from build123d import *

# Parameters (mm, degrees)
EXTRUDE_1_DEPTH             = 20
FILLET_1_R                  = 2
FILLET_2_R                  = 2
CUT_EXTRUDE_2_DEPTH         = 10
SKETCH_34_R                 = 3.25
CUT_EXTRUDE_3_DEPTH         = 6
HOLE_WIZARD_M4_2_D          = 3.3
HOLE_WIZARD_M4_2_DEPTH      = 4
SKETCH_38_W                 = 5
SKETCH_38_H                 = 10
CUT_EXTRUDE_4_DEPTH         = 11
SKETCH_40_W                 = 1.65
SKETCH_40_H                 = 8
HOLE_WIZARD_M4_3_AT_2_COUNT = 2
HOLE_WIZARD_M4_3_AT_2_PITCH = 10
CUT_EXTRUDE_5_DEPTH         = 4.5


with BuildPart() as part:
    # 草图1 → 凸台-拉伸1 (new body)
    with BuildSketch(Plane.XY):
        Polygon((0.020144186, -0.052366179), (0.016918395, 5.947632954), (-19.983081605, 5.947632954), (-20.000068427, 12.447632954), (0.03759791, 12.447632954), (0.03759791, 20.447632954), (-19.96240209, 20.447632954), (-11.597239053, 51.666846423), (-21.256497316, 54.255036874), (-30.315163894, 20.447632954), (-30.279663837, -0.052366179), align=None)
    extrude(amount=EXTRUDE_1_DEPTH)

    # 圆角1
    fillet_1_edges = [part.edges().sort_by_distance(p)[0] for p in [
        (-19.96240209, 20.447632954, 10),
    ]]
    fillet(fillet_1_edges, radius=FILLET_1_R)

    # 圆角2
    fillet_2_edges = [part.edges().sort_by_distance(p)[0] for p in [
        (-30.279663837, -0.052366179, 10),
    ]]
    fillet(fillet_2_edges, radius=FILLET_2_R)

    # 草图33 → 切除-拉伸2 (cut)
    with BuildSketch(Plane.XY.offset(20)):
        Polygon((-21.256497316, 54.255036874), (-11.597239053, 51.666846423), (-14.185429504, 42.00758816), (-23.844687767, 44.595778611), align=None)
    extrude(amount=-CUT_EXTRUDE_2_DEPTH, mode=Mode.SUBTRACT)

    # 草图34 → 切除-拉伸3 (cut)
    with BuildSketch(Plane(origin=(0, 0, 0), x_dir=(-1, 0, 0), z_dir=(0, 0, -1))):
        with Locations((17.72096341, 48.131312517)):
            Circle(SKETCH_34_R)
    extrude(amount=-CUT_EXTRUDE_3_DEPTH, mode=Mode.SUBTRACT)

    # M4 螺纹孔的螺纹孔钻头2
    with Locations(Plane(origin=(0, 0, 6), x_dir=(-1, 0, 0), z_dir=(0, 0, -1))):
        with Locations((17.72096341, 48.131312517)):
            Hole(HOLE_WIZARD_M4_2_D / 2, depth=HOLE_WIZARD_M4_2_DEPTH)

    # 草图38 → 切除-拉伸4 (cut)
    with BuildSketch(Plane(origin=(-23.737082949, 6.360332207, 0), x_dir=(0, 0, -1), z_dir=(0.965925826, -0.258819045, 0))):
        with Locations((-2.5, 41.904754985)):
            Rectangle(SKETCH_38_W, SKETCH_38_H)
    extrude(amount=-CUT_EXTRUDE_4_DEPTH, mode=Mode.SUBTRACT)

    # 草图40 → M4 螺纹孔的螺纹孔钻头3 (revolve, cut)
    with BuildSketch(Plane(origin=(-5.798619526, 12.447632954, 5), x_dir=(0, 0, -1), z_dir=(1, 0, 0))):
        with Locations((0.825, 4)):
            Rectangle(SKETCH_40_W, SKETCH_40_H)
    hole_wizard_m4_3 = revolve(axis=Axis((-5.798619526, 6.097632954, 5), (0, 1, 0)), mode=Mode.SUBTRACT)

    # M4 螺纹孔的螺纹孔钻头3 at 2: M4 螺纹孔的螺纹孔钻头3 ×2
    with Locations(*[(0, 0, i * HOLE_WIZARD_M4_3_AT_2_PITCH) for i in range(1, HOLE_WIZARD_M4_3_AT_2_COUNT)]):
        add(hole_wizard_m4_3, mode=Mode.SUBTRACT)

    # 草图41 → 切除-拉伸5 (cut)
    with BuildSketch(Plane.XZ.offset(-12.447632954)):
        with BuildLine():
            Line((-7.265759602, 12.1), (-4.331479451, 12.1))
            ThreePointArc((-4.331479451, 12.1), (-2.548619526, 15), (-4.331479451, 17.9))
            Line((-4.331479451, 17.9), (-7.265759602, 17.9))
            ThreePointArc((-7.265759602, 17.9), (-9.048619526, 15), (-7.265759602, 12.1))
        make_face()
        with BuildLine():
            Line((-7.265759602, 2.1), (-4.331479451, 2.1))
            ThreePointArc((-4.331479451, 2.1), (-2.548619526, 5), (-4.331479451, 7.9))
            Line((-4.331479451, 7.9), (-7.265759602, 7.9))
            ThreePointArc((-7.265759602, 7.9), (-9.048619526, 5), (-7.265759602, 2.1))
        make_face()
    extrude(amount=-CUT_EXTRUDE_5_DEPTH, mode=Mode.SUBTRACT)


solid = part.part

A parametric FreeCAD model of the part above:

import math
import FreeCAD as App
import Part
import Sketcher
from FreeCAD import Vector
Q = App.Units.Quantity


def edges_at(feature, points):
    """Names of the edges that pass closest to the given points."""
    edges = feature.Shape.Edges
    near = lambda p: min(range(len(edges)), key=lambda i: edges[i].distToShape(Part.Vertex(*p))[0])
    return sorted({f"Edge{near(p) + 1}" for p in points})

doc = App.newDocument("Part")
body = doc.addObject("PartDesign::Body", "Body")

# Sketch on XY plane
sketch1 = doc.addObject("Sketcher::SketchObject", "Sketch")
body.addObject(sketch1)
sketch1.AttachmentSupport = (doc.XY_Plane, [""])
sketch1.MapMode = "FlatFace"
sketch1.addGeometry([
    Part.LineSegment(Vector(0.020144, -0.052366, 0), Vector(0.016918, 5.947633, 0)),  # 0
    Part.LineSegment(Vector(0.016918, 5.947633, 0), Vector(-19.983082, 5.947633, 0)),  # 1
    Part.LineSegment(Vector(-19.983082, 5.947633, 0), Vector(-20.000068, 12.447633, 0)),  # 2
    Part.LineSegment(Vector(-20.000068, 12.447633, 0), Vector(0.037598, 12.447633, 0)),  # 3
    Part.LineSegment(Vector(0.037598, 12.447633, 0), Vector(0.037598, 20.447633, 0)),  # 4
    Part.LineSegment(Vector(0.037598, 20.447633, 0), Vector(-19.962402, 20.447633, 0)),  # 5
    Part.LineSegment(Vector(-19.962402, 20.447633, 0), Vector(-11.597239, 51.666846, 0)),  # 6
    Part.LineSegment(Vector(-11.597239, 51.666846, 0), Vector(-21.256497, 54.255037, 0)),  # 7
    Part.LineSegment(Vector(-21.256497, 54.255037, 0), Vector(-30.315164, 20.447633, 0)),  # 8
    Part.LineSegment(Vector(-30.315164, 20.447633, 0), Vector(-30.279664, -0.052366, 0)),  # 9
    Part.LineSegment(Vector(-30.279664, -0.052366, 0), Vector(0.020144, -0.052366, 0)),  # 10
], False)
sketch1.addConstraint([
    Sketcher.Constraint("Coincident", 0, 2, 1, 1),
    Sketcher.Constraint("Coincident", 1, 2, 2, 1),
    Sketcher.Constraint("Coincident", 2, 2, 3, 1),
    Sketcher.Constraint("Coincident", 3, 2, 4, 1),
    Sketcher.Constraint("Coincident", 4, 2, 5, 1),
    Sketcher.Constraint("Coincident", 5, 2, 6, 1),
    Sketcher.Constraint("Coincident", 6, 2, 7, 1),
    Sketcher.Constraint("Coincident", 7, 2, 8, 1),
    Sketcher.Constraint("Coincident", 8, 2, 9, 1),
    Sketcher.Constraint("Coincident", 9, 2, 10, 1),
    Sketcher.Constraint("Coincident", 10, 2, 0, 1),
    Sketcher.Constraint("Horizontal", 1),
    Sketcher.Constraint("Horizontal", 3),
    Sketcher.Constraint("Vertical", 4),
    Sketcher.Constraint("Horizontal", 5),
    Sketcher.Constraint("Horizontal", 10),
    Sketcher.Constraint("Perpendicular", 6, 7),
    Sketcher.Constraint("Perpendicular", 7, 8),
    Sketcher.Constraint("Horizontal", 5, 2, 8, 2),
    Sketcher.Constraint("Equal", 1, 5),
    Sketcher.Constraint("DistanceX", 1, 2, 1, 1, Q("20 mm")),
    Sketcher.Constraint("DistanceY", 4, 1, 4, 2, Q("8 mm")),
    Sketcher.Constraint("Angle", 6, Q("75 deg")),
    Sketcher.Constraint("Distance", 0, Q("6 mm")),
    Sketcher.Constraint("Distance", 7, Q("10 mm")),
    Sketcher.Constraint("Distance", 8, Q("35 mm")),
    Sketcher.Constraint("DistanceY", 1, 2, 2, 2, Q("6.5 mm")),
    Sketcher.Constraint("DistanceX", 10, 1, 10, 2, Q("30.299808 mm")),
    Sketcher.Constraint("DistanceX", 8, 2, 9, 2, Q("0.0355 mm")),
    Sketcher.Constraint("DistanceX", 3, 1, 3, 2, Q("20.037666 mm")),
    Sketcher.Constraint("DistanceX", -1, 1, 0, 2, Q("0.016918 mm")),
    Sketcher.Constraint("DistanceX", 2, 2, -1, 1, Q("20.000068 mm")),
    Sketcher.Constraint("DistanceY", -1, 1, 0, 2, Q("5.947633 mm")),
])
pad1 = doc.addObject("PartDesign::Pad", "Pad")
body.addObject(pad1)
pad1.Profile = sketch1
pad1.Length = 20
doc.recompute()

fillet = doc.addObject("PartDesign::Fillet", "Fillet")
body.addObject(fillet)
fillet.Base = (pad1, edges_at(pad1, [(-19.962, 20.448, 10)]))
fillet.Radius = 2
doc.recompute()

fillet2 = doc.addObject("PartDesign::Fillet", "Fillet001")
body.addObject(fillet2)
fillet2.Base = (fillet, edges_at(fillet, [(-30.28, -0.052, 10)]))
fillet2.Radius = 2

# Sketch on XY plane
sketch2 = doc.addObject("Sketcher::SketchObject", "Sketch001")
body.addObject(sketch2)
sketch2.AttachmentSupport = (doc.XY_Plane, [""])
sketch2.MapMode = "FlatFace"
sketch2.AttachmentOffset = App.Placement(Vector(0, 0, 20), App.Rotation())
sketch2.addGeometry([
    Part.LineSegment(Vector(-11.597239, 51.666846, 0), Vector(-21.256497, 54.255037, 0)),
    Part.LineSegment(Vector(-21.256497, 54.255037, 0), Vector(-23.844688, 44.595779, 0)),
    Part.LineSegment(Vector(-23.844688, 44.595779, 0), Vector(-14.18543, 42.007588, 0)),
    Part.LineSegment(Vector(-14.18543, 42.007588, 0), Vector(-11.597239, 51.666846, 0)),
], False)
sketch2.addConstraint([
    Sketcher.Constraint("Coincident", 0, 2, 1, 1),
    Sketcher.Constraint("Coincident", 1, 2, 2, 1),
    Sketcher.Constraint("Coincident", 2, 2, 3, 1),
    Sketcher.Constraint("Coincident", 3, 2, 0, 1),
    Sketcher.Constraint("Perpendicular", 0, 1),
    Sketcher.Constraint("Perpendicular", 1, 2),
    Sketcher.Constraint("Perpendicular", 2, 3),
    Sketcher.Constraint("Equal", 0, 1),
    Sketcher.Constraint("Angle", 0, Q("165 deg")),
    Sketcher.Constraint("Distance", 0, Q("10 mm")),
    Sketcher.Constraint("DistanceY", -1, 1, 1, 2, Q("44.595779 mm")),
    Sketcher.Constraint("DistanceX", 2, 2, -1, 1, Q("14.18543 mm")),
])
pocket1 = doc.addObject("PartDesign::Pocket", "Pocket")
body.addObject(pocket1)
pocket1.Profile = sketch2
pocket1.Length = 10

# Sketch on XY plane
sketch3 = doc.addObject("Sketcher::SketchObject", "Sketch002")
body.addObject(sketch3)
sketch3.AttachmentSupport = (doc.XY_Plane, [""])
sketch3.MapMode = "FlatFace"
sketch3.addGeometry(Part.Circle(Vector(-17.720963, 48.131313, 0), Vector(0, 0, 1), 3.25), False)
sketch3.addConstraint([
    Sketcher.Constraint("Diameter", 0, Q("6.5 mm")),
    Sketcher.Constraint("DistanceX", 0, 3, -1, 1, Q("17.720963 mm")),
    Sketcher.Constraint("DistanceY", -1, 1, 0, 3, Q("48.131313 mm")),
])
pocket2 = doc.addObject("PartDesign::Pocket", "Pocket001")
body.addObject(pocket2)
pocket2.Profile = sketch3
pocket2.Length = 6
pocket2.Reversed = True

# Sketch on XY plane
sketch4 = doc.addObject("Sketcher::SketchObject", "Sketch003")
body.addObject(sketch4)
sketch4.AttachmentSupport = (doc.XY_Plane, [""])
sketch4.MapMode = "FlatFace"
sketch4.AttachmentOffset = App.Placement(Vector(0, 0, 6), App.Rotation())
sketch4.addGeometry(Part.Circle(Vector(-17.720963, 48.131313, 0), Vector(0, 0, 1), 1.65), False)
sketch4.addConstraint([
    Sketcher.Constraint("Diameter", 0, Q("3.3 mm")),
    Sketcher.Constraint("DistanceX", 0, 3, -1, 1, Q("17.720963 mm")),
    Sketcher.Constraint("DistanceY", -1, 1, 0, 3, Q("48.131313 mm")),
])
doc.recompute()
hole = doc.addObject("PartDesign::Hole", "Hole")
body.addObject(hole)
hole.Profile = sketch4
hole.ThreadType = "None"
hole.Diameter = 3.3
hole.DepthType = "Dimension"
hole.Depth = 4
hole.DrillPoint = "Flat"
hole.Reversed = True

# Sketch on an angled plane
sketch5 = doc.addObject("Sketcher::SketchObject", "Sketch004")
body.addObject(sketch5)
sketch5.Placement = App.Placement(Vector(-23.737083, 6.360332, 0), App.Rotation(Vector(0, 0, -1), Vector(0.258819045, 0.965925826, 0), Vector(0.965925826, -0.258819045, 0), "ZXY"))
sketch5.addGeometry([
    Part.LineSegment(Vector(-5, 46.904755, 0), Vector(-5, 36.904755, 0)),
    Part.LineSegment(Vector(-5, 36.904755, 0), Vector(0, 36.904755, 0)),
    Part.LineSegment(Vector(0, 36.904755, 0), Vector(0, 46.904755, 0)),
    Part.LineSegment(Vector(0, 46.904755, 0), Vector(-5, 46.904755, 0)),
], False)
sketch5.addConstraint([
    Sketcher.Constraint("Coincident", 0, 2, 1, 1),
    Sketcher.Constraint("Coincident", 1, 2, 2, 1),
    Sketcher.Constraint("Coincident", 2, 2, 3, 1),
    Sketcher.Constraint("Coincident", 3, 2, 0, 1),
    Sketcher.Constraint("Vertical", 0),
    Sketcher.Constraint("Horizontal", 1),
    Sketcher.Constraint("Vertical", 2),
    Sketcher.Constraint("Horizontal", 3),
    Sketcher.Constraint("PointOnObject", 1, 2, -2),
    Sketcher.Constraint("DistanceX", 1, 1, 1, 2, Q("5 mm")),
    Sketcher.Constraint("DistanceY", 0, 2, 0, 1, Q("10 mm")),
    Sketcher.Constraint("DistanceY", -1, 1, 0, 2, Q("36.904755 mm")),
])
pocket3 = doc.addObject("PartDesign::Pocket", "Pocket002")
body.addObject(pocket3)
pocket3.Profile = sketch5
pocket3.Length = 11

# Sketch on YZ plane
sketch6 = doc.addObject("Sketcher::SketchObject", "Sketch005")
body.addObject(sketch6)
sketch6.AttachmentSupport = (doc.YZ_Plane, [""])
sketch6.MapMode = "FlatFace"
sketch6.AttachmentOffset = App.Placement(Vector(0, 0, -5.79862), App.Rotation())
sketch6.addGeometry([
    Part.LineSegment(Vector(20.447633, 5, 0), Vector(12.447633, 5, 0)),
    Part.LineSegment(Vector(12.447633, 5, 0), Vector(12.447633, 3.35, 0)),
    Part.LineSegment(Vector(12.447633, 3.35, 0), Vector(20.447633, 3.35, 0)),
    Part.LineSegment(Vector(20.447633, 3.35, 0), Vector(20.447633, 5, 0)),
], False)
sketch6.addGeometry(Part.LineSegment(Vector(12.447633, 5, 0), Vector(20.447633, 5, 0)), True)  # axis
sketch6.addConstraint([
    Sketcher.Constraint("Coincident", 0, 2, 1, 1),
    Sketcher.Constraint("Coincident", 1, 2, 2, 1),
    Sketcher.Constraint("Coincident", 2, 2, 3, 1),
    Sketcher.Constraint("Coincident", 3, 2, 0, 1),
    Sketcher.Constraint("Horizontal", 0),
    Sketcher.Constraint("Vertical", 1),
    Sketcher.Constraint("Horizontal", 2),
    Sketcher.Constraint("Vertical", 3),
    Sketcher.Constraint("Horizontal", 4),
    Sketcher.Constraint("Coincident", 4, 1, 0, 2),
    Sketcher.Constraint("Vertical", 2, 2, 4, 2),
    Sketcher.Constraint("DistanceX", 0, 2, 0, 1, Q("8 mm")),
    Sketcher.Constraint("DistanceY", -1, 1, 0, 2, Q("5 mm")),
    Sketcher.Constraint("DistanceY", 1, 2, 1, 1, Q("1.65 mm")),
    Sketcher.Constraint("DistanceX", -1, 1, 0, 2, Q("12.447633 mm")),
])
groove = doc.addObject("PartDesign::Groove", "Groove")
body.addObject(groove)
groove.Profile = sketch6
groove.ReferenceAxis = (sketch6, ["Axis0"])
groove.Angle = 360
doc.recompute()

linearpattern = doc.addObject("PartDesign::LinearPattern", "LinearPattern")
body.addObject(linearpattern)
linearpattern.Originals = [groove]
linearpattern.Direction = (doc.Z_Axis, [""])
linearpattern.Mode = "offset"
linearpattern.Offset = 10
linearpattern.Occurrences = 2
body.Tip = linearpattern

# Sketch on XZ plane
sketch7 = doc.addObject("Sketcher::SketchObject", "Sketch006")
body.addObject(sketch7)
sketch7.AttachmentSupport = (doc.XZ_Plane, [""])
sketch7.MapMode = "FlatFace"
sketch7.AttachmentOffset = App.Placement(Vector(0, 0, -12.447633), App.Rotation())
sketch7.addGeometry([
    Part.LineSegment(Vector(-7.26576, 12.1, 0), Vector(-4.331479, 12.1, 0)),  # 0
    Part.ArcOfCircle(Part.Circle(Vector(-5.79862, 15, 0), Vector(0, 0, 1), 3.25), math.radians(-63.164678), math.radians(63.164678)),  # 1
    Part.LineSegment(Vector(-4.331479, 17.9, 0), Vector(-7.26576, 17.9, 0)),  # 2
    Part.ArcOfCircle(Part.Circle(Vector(-5.79862, 15, 0), Vector(0, 0, 1), 3.25), math.radians(116.835322), math.radians(243.164678)),  # 3
    Part.LineSegment(Vector(-7.26576, 2.1, 0), Vector(-4.331479, 2.1, 0)),  # 4
    Part.ArcOfCircle(Part.Circle(Vector(-5.79862, 5, 0), Vector(0, 0, 1), 3.25), math.radians(-63.164678), math.radians(63.164678)),  # 5
    Part.LineSegment(Vector(-4.331479, 7.9, 0), Vector(-7.26576, 7.9, 0)),  # 6
    Part.ArcOfCircle(Part.Circle(Vector(-5.79862, 5, 0), Vector(0, 0, 1), 3.25), math.radians(116.835322), math.radians(243.164678)),  # 7
], False)
sketch7.addConstraint([
    Sketcher.Constraint("Coincident", 0, 2, 1, 1),
    Sketcher.Constraint("Coincident", 1, 2, 2, 1),
    Sketcher.Constraint("Coincident", 2, 2, 3, 1),
    Sketcher.Constraint("Coincident", 3, 2, 0, 1),
    Sketcher.Constraint("Coincident", 4, 2, 5, 1),
    Sketcher.Constraint("Coincident", 5, 2, 6, 1),
    Sketcher.Constraint("Coincident", 6, 2, 7, 1),
    Sketcher.Constraint("Coincident", 7, 2, 4, 1),
    Sketcher.Constraint("Horizontal", 0),
    Sketcher.Constraint("Horizontal", 2),
    Sketcher.Constraint("Horizontal", 4),
    Sketcher.Constraint("Horizontal", 6),
    Sketcher.Constraint("Coincident", 3, 3, 1, 3),
    Sketcher.Constraint("Coincident", 7, 3, 5, 3),
    Sketcher.Constraint("Equal", 1, 3),
    Sketcher.Constraint("Equal", 3, 5),
    Sketcher.Constraint("Equal", 5, 7),
    Sketcher.Constraint("Vertical", 3, 3, 5, 3),
    Sketcher.Constraint("Vertical", 0, 2, 1, 2),
    Sketcher.Constraint("Vertical", 1, 2, 4, 2),
    Sketcher.Constraint("Vertical", 4, 2, 5, 2),
    Sketcher.Constraint("Radius", 1, Q("3.25 mm")),
    Sketcher.Constraint("DistanceY", -1, 1, 1, 3, Q("15 mm")),
    Sketcher.Constraint("DistanceY", -1, 1, 5, 3, Q("5 mm")),
    Sketcher.Constraint("DistanceY", -1, 1, 0, 2, Q("12.1 mm")),
    Sketcher.Constraint("DistanceX", 1, 3, -1, 1, Q("5.79862 mm")),
])
pocket4 = doc.addObject("PartDesign::Pocket", "Pocket003")
body.addObject(pocket4)
pocket4.Profile = sketch7
pocket4.Length = 4.5

doc.recompute()
